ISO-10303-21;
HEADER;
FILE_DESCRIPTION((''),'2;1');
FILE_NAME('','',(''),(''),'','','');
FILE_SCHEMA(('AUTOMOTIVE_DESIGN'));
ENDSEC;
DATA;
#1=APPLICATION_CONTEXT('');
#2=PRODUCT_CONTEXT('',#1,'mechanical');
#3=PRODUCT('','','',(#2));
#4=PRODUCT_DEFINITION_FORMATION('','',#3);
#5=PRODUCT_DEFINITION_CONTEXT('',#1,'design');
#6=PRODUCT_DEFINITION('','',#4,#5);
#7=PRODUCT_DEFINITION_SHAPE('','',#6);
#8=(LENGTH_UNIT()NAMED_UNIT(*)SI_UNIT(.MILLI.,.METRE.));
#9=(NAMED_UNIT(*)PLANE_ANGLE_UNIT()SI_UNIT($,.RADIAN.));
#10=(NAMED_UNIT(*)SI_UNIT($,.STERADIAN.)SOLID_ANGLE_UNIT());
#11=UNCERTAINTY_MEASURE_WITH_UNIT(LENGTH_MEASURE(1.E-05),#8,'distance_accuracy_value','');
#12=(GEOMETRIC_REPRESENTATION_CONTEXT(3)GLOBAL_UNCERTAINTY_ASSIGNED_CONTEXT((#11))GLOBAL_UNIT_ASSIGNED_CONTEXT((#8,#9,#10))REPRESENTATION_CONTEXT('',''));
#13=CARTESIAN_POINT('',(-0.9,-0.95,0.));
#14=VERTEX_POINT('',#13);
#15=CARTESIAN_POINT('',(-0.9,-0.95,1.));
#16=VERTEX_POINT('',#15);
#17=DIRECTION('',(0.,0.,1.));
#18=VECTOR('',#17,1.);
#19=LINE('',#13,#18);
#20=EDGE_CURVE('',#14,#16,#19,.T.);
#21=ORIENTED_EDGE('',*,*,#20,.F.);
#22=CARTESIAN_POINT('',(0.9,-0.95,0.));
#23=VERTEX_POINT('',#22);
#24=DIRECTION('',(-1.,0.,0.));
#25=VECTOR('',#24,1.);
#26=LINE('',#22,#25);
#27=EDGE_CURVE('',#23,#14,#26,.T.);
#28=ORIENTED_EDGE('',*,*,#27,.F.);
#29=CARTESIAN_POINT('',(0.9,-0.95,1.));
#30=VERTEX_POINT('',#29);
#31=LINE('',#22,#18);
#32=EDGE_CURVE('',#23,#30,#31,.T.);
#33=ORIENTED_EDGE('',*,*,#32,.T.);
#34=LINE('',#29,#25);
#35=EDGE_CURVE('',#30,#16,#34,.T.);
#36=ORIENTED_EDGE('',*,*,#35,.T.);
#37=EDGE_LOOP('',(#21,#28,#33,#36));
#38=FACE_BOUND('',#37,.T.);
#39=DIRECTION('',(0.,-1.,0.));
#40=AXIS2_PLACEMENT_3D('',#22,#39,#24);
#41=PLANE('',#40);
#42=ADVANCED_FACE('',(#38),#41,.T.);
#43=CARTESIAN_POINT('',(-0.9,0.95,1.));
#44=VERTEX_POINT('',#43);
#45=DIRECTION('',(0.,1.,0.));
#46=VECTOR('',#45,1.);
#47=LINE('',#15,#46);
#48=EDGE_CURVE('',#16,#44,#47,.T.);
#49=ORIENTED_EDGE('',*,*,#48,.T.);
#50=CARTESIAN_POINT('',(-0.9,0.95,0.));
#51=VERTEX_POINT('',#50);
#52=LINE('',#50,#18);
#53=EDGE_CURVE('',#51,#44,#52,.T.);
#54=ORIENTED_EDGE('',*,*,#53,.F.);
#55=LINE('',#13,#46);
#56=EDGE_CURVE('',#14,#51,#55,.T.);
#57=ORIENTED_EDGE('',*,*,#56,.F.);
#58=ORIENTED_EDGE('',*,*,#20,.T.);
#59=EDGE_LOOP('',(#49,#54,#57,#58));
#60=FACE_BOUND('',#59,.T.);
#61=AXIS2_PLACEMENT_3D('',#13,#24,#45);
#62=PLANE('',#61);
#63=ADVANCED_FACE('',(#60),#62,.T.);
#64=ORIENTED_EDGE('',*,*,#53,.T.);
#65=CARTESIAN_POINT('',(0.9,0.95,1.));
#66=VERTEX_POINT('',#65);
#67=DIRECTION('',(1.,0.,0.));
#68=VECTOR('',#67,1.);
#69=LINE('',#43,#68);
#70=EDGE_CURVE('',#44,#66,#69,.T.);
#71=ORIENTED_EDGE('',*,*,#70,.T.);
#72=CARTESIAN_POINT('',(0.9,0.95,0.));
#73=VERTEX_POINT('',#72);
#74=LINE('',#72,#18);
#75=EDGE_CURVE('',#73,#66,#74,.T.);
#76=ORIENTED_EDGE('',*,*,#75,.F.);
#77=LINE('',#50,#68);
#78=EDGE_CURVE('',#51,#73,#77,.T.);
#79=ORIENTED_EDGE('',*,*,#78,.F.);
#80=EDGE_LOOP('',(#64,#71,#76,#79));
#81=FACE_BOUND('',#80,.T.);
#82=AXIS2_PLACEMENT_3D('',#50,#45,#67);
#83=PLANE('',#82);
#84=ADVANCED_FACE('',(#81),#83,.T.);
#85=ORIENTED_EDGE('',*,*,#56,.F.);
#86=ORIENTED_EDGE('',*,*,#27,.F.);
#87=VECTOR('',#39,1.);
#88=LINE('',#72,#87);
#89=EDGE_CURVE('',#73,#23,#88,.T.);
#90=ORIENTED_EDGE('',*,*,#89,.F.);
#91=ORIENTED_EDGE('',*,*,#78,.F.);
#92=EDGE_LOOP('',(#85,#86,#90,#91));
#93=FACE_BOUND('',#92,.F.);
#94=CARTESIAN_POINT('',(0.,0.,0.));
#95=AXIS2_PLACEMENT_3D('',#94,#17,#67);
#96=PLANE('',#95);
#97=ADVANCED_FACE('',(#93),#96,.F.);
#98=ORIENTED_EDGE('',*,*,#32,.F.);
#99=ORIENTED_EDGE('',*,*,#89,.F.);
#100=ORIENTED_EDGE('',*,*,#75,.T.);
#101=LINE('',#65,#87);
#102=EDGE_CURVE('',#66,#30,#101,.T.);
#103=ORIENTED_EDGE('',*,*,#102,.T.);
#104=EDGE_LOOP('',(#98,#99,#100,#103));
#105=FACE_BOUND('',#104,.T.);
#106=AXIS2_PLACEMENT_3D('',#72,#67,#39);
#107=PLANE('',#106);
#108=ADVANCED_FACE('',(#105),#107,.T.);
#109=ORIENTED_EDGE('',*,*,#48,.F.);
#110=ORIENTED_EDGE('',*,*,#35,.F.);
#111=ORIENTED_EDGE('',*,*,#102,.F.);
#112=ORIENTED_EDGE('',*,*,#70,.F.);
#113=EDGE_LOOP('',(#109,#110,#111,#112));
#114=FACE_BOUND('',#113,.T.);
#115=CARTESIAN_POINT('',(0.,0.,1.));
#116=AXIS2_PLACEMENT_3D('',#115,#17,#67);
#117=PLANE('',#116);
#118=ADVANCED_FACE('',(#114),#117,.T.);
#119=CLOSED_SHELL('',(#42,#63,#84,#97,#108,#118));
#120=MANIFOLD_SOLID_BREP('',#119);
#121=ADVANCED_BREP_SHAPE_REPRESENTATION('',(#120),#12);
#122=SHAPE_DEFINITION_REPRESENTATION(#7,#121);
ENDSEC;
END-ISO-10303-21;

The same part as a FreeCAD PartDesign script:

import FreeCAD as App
import Part
import Sketcher
from FreeCAD import Vector
Q = App.Units.Quantity

doc = App.newDocument("Part")
body = doc.addObject("PartDesign::Body", "Body")

# Sketch on XY plane
sketch1 = body.newObject("Sketcher::SketchObject", "Sketch")
sketch1.AttachmentSupport = (doc.getObject("XY_Plane"), [""])
sketch1.MapMode = "FlatFace"
sketch1.addGeometry([
    Part.LineSegment(Vector(0.9, 0.95, 0), Vector(-0.9, 0.95, 0)),
    Part.LineSegment(Vector(-0.9, 0.95, 0), Vector(-0.9, -0.95, 0)),
    Part.LineSegment(Vector(-0.9, -0.95, 0), Vector(0.9, -0.95, 0)),
    Part.LineSegment(Vector(0.9, -0.95, 0), Vector(0.9, 0.95, 0)),
], False)
sketch1.addConstraint([
    Sketcher.Constraint("Coincident", 0, 2, 1, 1),
    Sketcher.Constraint("Coincident", 1, 2, 2, 1),
    Sketcher.Constraint("Coincident", 2, 2, 3, 1),
    Sketcher.Constraint("Coincident", 3, 2, 0, 1),
    Sketcher.Constraint("Horizontal", 0),
    Sketcher.Constraint("Vertical", 1),
    Sketcher.Constraint("Horizontal", 2),
    Sketcher.Constraint("Vertical", 3),
    Sketcher.Constraint("Symmetric", 0, 2, 2, 2, -1, 1),
    Sketcher.Constraint("DistanceX", 0, 2, 0, 1, Q("1.8 mm")),
    Sketcher.Constraint("DistanceY", 1, 2, 1, 1, Q("1.9 mm")),
])
pad1 = body.newObject("PartDesign::Pad", "Pad")
pad1.Profile = sketch1
pad1.Length = 1

doc.recompute()
